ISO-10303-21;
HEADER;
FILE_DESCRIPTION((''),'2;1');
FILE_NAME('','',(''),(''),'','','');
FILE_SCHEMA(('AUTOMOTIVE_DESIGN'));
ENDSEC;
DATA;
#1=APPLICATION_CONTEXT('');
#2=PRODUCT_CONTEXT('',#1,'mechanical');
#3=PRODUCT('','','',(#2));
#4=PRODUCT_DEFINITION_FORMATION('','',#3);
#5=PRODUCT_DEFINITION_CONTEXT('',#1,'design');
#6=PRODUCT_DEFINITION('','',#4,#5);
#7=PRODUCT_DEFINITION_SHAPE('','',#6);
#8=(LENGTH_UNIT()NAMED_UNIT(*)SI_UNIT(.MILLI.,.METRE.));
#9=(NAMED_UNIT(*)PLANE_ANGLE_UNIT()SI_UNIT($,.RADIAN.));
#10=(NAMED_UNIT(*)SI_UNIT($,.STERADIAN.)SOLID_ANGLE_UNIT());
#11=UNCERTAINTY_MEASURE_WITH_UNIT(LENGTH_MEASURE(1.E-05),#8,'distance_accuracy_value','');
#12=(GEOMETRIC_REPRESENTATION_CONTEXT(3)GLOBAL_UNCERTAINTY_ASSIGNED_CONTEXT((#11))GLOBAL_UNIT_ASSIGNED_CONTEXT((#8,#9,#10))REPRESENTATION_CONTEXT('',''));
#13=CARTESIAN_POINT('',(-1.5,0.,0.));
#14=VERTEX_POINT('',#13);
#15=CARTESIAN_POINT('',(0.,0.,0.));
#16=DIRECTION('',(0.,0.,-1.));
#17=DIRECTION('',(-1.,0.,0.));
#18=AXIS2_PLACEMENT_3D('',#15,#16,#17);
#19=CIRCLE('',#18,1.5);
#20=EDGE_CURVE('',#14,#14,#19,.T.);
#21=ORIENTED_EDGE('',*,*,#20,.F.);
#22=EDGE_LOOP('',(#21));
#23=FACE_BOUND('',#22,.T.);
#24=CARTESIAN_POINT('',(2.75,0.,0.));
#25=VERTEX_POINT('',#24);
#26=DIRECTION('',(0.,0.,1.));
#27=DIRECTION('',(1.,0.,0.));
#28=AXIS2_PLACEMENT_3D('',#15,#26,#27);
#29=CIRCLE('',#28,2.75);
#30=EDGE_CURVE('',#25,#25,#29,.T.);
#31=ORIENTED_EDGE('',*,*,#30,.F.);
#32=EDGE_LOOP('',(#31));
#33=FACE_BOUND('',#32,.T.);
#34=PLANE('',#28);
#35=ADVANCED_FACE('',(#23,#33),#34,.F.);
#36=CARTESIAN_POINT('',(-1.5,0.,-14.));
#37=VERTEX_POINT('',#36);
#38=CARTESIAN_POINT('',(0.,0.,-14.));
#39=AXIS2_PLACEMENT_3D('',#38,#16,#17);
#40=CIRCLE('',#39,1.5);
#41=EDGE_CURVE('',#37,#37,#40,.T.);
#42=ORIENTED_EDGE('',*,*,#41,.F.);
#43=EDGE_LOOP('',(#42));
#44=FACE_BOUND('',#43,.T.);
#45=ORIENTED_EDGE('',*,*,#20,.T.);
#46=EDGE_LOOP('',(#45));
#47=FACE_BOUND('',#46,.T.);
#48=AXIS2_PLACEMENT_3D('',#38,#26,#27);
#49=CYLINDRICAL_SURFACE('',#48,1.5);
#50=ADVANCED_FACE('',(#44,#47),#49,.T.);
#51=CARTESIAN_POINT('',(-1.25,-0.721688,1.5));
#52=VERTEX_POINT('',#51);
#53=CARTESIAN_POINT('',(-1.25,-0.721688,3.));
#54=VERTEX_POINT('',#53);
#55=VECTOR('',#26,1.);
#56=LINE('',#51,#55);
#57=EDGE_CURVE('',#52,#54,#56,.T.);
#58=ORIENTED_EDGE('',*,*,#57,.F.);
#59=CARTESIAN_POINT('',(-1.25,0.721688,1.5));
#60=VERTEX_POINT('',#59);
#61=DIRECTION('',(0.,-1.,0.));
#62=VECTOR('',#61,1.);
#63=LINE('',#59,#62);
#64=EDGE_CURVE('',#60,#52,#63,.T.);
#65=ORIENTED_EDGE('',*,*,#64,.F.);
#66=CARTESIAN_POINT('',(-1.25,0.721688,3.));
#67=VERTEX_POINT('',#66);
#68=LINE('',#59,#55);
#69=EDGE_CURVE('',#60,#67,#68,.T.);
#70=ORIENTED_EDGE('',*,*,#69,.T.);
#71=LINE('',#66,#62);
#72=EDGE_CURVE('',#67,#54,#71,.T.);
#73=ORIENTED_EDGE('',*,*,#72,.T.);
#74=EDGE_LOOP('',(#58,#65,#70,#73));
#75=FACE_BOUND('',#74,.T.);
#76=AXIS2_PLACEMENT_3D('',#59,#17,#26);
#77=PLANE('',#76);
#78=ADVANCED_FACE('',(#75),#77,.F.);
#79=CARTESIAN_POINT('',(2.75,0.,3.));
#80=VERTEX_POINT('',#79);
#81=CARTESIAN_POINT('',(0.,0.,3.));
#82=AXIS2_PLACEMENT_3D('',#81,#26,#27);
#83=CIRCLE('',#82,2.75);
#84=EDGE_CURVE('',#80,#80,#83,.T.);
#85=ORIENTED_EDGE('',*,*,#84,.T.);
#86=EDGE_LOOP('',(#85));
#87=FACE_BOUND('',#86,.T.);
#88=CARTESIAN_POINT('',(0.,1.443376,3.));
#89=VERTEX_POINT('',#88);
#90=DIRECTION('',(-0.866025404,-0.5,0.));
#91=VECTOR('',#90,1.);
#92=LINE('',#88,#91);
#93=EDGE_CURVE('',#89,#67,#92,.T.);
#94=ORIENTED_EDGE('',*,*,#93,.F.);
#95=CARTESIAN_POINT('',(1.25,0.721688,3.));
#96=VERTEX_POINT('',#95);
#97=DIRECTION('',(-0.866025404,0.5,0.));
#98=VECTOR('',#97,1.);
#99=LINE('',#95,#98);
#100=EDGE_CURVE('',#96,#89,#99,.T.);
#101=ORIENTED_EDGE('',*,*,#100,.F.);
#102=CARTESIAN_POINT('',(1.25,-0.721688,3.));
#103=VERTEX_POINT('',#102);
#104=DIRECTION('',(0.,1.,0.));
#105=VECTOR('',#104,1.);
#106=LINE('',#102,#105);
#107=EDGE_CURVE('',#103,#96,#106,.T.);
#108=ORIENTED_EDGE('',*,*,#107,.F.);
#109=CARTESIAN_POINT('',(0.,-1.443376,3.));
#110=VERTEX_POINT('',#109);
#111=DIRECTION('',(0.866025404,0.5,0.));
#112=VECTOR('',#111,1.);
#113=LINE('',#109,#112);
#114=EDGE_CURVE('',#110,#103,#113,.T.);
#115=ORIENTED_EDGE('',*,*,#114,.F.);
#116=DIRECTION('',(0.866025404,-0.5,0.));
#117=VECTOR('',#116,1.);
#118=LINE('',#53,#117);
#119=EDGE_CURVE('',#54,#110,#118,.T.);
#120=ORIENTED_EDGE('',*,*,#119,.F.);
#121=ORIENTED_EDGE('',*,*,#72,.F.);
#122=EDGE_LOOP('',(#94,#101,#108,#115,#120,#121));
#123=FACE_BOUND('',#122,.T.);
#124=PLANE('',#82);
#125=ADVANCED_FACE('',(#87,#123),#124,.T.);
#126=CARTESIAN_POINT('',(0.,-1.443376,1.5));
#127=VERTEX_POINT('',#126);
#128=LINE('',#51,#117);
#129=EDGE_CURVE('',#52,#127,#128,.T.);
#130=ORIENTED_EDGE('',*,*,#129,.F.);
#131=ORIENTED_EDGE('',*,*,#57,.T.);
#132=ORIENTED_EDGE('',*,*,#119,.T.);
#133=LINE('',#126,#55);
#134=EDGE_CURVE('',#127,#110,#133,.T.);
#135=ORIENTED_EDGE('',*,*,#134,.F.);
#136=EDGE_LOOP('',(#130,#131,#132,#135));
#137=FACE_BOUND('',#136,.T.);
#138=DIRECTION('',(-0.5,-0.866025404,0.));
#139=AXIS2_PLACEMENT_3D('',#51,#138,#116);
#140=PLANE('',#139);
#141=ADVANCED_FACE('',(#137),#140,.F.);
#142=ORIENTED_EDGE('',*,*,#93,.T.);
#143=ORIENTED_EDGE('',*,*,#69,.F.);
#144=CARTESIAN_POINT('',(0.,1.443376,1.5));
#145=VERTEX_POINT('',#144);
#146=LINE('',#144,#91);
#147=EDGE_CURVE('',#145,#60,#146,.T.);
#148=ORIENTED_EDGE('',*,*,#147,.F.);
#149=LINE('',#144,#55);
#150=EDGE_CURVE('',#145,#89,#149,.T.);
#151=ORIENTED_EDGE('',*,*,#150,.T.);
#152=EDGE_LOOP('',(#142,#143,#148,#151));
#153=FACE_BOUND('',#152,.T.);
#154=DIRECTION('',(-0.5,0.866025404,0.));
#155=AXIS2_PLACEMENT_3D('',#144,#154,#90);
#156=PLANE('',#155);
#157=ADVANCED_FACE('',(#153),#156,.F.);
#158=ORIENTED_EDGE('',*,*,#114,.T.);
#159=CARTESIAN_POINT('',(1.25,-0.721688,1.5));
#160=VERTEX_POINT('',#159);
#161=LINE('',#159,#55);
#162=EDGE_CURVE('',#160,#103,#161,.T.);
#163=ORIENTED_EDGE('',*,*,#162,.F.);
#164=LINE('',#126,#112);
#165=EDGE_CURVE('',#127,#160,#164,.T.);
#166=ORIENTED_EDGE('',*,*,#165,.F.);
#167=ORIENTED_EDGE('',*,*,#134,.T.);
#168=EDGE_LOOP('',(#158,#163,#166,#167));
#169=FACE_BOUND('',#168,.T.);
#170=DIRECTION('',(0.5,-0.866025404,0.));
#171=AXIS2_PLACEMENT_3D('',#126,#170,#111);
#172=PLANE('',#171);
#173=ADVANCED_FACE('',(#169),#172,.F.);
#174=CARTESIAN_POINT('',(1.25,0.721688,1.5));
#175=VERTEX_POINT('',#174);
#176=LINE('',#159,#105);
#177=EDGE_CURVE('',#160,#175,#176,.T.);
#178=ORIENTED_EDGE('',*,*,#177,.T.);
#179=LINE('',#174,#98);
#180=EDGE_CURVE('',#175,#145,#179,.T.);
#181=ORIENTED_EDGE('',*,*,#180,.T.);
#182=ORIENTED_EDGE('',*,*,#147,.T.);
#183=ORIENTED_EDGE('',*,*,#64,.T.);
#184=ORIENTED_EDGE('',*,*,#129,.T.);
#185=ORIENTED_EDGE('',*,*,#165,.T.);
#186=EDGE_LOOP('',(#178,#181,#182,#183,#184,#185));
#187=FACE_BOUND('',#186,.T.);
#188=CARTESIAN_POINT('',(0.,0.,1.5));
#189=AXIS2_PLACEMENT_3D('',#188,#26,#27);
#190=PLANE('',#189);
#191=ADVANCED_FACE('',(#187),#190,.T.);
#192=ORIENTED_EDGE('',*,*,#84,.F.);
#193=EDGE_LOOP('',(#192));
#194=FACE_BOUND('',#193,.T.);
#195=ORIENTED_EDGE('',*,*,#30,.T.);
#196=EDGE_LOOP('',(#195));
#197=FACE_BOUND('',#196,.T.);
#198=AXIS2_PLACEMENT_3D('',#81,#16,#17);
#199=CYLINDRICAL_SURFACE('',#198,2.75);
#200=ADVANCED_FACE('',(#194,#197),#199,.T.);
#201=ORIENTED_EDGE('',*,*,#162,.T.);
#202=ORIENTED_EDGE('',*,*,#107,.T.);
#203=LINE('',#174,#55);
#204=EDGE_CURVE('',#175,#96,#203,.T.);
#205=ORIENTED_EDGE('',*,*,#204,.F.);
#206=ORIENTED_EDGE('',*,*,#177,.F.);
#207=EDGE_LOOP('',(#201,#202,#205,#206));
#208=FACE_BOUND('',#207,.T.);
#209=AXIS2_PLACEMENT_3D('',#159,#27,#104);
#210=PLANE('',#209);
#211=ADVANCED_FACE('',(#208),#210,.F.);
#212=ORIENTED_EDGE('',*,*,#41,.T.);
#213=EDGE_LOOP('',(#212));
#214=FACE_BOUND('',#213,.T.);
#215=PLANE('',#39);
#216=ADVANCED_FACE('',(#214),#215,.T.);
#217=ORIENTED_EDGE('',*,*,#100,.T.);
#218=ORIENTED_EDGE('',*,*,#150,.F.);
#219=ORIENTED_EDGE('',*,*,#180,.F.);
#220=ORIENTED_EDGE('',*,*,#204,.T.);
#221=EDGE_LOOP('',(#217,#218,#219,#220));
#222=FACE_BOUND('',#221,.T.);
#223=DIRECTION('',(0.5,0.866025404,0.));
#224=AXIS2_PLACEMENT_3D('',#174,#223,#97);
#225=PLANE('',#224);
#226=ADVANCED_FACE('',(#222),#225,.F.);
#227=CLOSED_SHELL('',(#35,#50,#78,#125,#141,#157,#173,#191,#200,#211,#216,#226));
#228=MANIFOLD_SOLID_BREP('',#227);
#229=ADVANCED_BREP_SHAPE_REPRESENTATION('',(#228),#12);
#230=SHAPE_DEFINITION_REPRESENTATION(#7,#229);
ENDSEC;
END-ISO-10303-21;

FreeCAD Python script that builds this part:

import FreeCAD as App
import Part
import Sketcher
from FreeCAD import Vector
Q = App.Units.Quantity

doc = App.newDocument("Part")
body = doc.addObject("PartDesign::Body", "Body")

# Sketch on XY plane
sketch1 = body.newObject("Sketcher::SketchObject", "Sketch")
sketch1.AttachmentSupport = (doc.getObject("XY_Plane"), [""])
sketch1.MapMode = "FlatFace"
sketch1.addGeometry(Part.Circle(Vector(0, 0, 0), Vector(0, 0, 1), 2.8), False)
sketch1.addConstraint([
    Sketcher.Constraint("Coincident", 0, 3, -1, 1),
    Sketcher.Constraint("Diameter", 0, 5.5),
])
pad1 = body.newObject("PartDesign::Pad", "Pad")
pad1.Profile = sketch1
pad1.Length = 3

# Sketch on XY plane
sketch2 = body.newObject("Sketcher::SketchObject", "Sketch001")
sketch2.AttachmentSupport = (doc.getObject("XY_Plane"), [""])
sketch2.MapMode = "FlatFace"
sketch2.AttachmentOffset = App.Placement(Vector(0, 0, 3), App.Rotation())
sketch2.addGeometry([
    Part.LineSegment(Vector(0, -1.4, 0), Vector(1.2, -0.7, 0)),  # 0
    Part.LineSegment(Vector(1.2, -0.7, 0), Vector(1.2, 0.7, 0)),  # 1
    Part.LineSegment(Vector(1.2, 0.7, 0), Vector(0, 1.4, 0)),  # 2
    Part.LineSegment(Vector(0, 1.4, 0), Vector(-1.2, 0.7, 0)),  # 3
    Part.LineSegment(Vector(-1.2, 0.7, 0), Vector(-1.2, -0.7, 0)),  # 4
    Part.LineSegment(Vector(-1.2, -0.7, 0), Vector(0, -1.4, 0)),  # 5
], False)
sketch2.addConstraint([
    Sketcher.Constraint("Coincident", 0, 2, 1, 1),
    Sketcher.Constraint("Coincident", 1, 2, 2, 1),
    Sketcher.Constraint("Coincident", 2, 2, 3, 1),
    Sketcher.Constraint("Coincident", 3, 2, 4, 1),
    Sketcher.Constraint("Coincident", 4, 2, 5, 1),
    Sketcher.Constraint("Coincident", 5, 2, 0, 1),
    Sketcher.Constraint("Vertical", 1),
    Sketcher.Constraint("Vertical", 4),
    Sketcher.Constraint("Symmetric", 0, 2, 3, 2, -1, 1),
    Sketcher.Constraint("Symmetric", 2, 2, 5, 2, -1, 1),
    Sketcher.Constraint("PointOnObject", 2, 2, -2),
    Sketcher.Constraint("Parallel", 2, 5),
    Sketcher.Constraint("Horizontal", 1, 2, 3, 2),
    Sketcher.Constraint("Angle", 0, Q("30 deg")),
    Sketcher.Constraint("DistanceX", 3, 2, 1, 2, 2.5),
    Sketcher.Constraint("DistanceY", 1, 1, 1, 2, 1.443376),
])
pocket1 = body.newObject("PartDesign::Pocket", "Pocket")
pocket1.Profile = sketch2
pocket1.Length = 1.5

# Sketch on XY plane
sketch3 = body.newObject("Sketcher::SketchObject", "Sketch002")
sketch3.AttachmentSupport = (doc.getObject("XY_Plane"), [""])
sketch3.MapMode = "FlatFace"
sketch3.addGeometry(Part.Circle(Vector(0, 0, 0), Vector(0, 0, 1), 1.5), False)
sketch3.addConstraint([
    Sketcher.Constraint("Coincident", 0, 3, -1, 1),
    Sketcher.Constraint("Diameter", 0, 3.0),
])
pad2 = body.newObject("PartDesign::Pad", "Pad001")
pad2.Profile = sketch3
pad2.Length = 14
pad2.Reversed = True

doc.recompute()
